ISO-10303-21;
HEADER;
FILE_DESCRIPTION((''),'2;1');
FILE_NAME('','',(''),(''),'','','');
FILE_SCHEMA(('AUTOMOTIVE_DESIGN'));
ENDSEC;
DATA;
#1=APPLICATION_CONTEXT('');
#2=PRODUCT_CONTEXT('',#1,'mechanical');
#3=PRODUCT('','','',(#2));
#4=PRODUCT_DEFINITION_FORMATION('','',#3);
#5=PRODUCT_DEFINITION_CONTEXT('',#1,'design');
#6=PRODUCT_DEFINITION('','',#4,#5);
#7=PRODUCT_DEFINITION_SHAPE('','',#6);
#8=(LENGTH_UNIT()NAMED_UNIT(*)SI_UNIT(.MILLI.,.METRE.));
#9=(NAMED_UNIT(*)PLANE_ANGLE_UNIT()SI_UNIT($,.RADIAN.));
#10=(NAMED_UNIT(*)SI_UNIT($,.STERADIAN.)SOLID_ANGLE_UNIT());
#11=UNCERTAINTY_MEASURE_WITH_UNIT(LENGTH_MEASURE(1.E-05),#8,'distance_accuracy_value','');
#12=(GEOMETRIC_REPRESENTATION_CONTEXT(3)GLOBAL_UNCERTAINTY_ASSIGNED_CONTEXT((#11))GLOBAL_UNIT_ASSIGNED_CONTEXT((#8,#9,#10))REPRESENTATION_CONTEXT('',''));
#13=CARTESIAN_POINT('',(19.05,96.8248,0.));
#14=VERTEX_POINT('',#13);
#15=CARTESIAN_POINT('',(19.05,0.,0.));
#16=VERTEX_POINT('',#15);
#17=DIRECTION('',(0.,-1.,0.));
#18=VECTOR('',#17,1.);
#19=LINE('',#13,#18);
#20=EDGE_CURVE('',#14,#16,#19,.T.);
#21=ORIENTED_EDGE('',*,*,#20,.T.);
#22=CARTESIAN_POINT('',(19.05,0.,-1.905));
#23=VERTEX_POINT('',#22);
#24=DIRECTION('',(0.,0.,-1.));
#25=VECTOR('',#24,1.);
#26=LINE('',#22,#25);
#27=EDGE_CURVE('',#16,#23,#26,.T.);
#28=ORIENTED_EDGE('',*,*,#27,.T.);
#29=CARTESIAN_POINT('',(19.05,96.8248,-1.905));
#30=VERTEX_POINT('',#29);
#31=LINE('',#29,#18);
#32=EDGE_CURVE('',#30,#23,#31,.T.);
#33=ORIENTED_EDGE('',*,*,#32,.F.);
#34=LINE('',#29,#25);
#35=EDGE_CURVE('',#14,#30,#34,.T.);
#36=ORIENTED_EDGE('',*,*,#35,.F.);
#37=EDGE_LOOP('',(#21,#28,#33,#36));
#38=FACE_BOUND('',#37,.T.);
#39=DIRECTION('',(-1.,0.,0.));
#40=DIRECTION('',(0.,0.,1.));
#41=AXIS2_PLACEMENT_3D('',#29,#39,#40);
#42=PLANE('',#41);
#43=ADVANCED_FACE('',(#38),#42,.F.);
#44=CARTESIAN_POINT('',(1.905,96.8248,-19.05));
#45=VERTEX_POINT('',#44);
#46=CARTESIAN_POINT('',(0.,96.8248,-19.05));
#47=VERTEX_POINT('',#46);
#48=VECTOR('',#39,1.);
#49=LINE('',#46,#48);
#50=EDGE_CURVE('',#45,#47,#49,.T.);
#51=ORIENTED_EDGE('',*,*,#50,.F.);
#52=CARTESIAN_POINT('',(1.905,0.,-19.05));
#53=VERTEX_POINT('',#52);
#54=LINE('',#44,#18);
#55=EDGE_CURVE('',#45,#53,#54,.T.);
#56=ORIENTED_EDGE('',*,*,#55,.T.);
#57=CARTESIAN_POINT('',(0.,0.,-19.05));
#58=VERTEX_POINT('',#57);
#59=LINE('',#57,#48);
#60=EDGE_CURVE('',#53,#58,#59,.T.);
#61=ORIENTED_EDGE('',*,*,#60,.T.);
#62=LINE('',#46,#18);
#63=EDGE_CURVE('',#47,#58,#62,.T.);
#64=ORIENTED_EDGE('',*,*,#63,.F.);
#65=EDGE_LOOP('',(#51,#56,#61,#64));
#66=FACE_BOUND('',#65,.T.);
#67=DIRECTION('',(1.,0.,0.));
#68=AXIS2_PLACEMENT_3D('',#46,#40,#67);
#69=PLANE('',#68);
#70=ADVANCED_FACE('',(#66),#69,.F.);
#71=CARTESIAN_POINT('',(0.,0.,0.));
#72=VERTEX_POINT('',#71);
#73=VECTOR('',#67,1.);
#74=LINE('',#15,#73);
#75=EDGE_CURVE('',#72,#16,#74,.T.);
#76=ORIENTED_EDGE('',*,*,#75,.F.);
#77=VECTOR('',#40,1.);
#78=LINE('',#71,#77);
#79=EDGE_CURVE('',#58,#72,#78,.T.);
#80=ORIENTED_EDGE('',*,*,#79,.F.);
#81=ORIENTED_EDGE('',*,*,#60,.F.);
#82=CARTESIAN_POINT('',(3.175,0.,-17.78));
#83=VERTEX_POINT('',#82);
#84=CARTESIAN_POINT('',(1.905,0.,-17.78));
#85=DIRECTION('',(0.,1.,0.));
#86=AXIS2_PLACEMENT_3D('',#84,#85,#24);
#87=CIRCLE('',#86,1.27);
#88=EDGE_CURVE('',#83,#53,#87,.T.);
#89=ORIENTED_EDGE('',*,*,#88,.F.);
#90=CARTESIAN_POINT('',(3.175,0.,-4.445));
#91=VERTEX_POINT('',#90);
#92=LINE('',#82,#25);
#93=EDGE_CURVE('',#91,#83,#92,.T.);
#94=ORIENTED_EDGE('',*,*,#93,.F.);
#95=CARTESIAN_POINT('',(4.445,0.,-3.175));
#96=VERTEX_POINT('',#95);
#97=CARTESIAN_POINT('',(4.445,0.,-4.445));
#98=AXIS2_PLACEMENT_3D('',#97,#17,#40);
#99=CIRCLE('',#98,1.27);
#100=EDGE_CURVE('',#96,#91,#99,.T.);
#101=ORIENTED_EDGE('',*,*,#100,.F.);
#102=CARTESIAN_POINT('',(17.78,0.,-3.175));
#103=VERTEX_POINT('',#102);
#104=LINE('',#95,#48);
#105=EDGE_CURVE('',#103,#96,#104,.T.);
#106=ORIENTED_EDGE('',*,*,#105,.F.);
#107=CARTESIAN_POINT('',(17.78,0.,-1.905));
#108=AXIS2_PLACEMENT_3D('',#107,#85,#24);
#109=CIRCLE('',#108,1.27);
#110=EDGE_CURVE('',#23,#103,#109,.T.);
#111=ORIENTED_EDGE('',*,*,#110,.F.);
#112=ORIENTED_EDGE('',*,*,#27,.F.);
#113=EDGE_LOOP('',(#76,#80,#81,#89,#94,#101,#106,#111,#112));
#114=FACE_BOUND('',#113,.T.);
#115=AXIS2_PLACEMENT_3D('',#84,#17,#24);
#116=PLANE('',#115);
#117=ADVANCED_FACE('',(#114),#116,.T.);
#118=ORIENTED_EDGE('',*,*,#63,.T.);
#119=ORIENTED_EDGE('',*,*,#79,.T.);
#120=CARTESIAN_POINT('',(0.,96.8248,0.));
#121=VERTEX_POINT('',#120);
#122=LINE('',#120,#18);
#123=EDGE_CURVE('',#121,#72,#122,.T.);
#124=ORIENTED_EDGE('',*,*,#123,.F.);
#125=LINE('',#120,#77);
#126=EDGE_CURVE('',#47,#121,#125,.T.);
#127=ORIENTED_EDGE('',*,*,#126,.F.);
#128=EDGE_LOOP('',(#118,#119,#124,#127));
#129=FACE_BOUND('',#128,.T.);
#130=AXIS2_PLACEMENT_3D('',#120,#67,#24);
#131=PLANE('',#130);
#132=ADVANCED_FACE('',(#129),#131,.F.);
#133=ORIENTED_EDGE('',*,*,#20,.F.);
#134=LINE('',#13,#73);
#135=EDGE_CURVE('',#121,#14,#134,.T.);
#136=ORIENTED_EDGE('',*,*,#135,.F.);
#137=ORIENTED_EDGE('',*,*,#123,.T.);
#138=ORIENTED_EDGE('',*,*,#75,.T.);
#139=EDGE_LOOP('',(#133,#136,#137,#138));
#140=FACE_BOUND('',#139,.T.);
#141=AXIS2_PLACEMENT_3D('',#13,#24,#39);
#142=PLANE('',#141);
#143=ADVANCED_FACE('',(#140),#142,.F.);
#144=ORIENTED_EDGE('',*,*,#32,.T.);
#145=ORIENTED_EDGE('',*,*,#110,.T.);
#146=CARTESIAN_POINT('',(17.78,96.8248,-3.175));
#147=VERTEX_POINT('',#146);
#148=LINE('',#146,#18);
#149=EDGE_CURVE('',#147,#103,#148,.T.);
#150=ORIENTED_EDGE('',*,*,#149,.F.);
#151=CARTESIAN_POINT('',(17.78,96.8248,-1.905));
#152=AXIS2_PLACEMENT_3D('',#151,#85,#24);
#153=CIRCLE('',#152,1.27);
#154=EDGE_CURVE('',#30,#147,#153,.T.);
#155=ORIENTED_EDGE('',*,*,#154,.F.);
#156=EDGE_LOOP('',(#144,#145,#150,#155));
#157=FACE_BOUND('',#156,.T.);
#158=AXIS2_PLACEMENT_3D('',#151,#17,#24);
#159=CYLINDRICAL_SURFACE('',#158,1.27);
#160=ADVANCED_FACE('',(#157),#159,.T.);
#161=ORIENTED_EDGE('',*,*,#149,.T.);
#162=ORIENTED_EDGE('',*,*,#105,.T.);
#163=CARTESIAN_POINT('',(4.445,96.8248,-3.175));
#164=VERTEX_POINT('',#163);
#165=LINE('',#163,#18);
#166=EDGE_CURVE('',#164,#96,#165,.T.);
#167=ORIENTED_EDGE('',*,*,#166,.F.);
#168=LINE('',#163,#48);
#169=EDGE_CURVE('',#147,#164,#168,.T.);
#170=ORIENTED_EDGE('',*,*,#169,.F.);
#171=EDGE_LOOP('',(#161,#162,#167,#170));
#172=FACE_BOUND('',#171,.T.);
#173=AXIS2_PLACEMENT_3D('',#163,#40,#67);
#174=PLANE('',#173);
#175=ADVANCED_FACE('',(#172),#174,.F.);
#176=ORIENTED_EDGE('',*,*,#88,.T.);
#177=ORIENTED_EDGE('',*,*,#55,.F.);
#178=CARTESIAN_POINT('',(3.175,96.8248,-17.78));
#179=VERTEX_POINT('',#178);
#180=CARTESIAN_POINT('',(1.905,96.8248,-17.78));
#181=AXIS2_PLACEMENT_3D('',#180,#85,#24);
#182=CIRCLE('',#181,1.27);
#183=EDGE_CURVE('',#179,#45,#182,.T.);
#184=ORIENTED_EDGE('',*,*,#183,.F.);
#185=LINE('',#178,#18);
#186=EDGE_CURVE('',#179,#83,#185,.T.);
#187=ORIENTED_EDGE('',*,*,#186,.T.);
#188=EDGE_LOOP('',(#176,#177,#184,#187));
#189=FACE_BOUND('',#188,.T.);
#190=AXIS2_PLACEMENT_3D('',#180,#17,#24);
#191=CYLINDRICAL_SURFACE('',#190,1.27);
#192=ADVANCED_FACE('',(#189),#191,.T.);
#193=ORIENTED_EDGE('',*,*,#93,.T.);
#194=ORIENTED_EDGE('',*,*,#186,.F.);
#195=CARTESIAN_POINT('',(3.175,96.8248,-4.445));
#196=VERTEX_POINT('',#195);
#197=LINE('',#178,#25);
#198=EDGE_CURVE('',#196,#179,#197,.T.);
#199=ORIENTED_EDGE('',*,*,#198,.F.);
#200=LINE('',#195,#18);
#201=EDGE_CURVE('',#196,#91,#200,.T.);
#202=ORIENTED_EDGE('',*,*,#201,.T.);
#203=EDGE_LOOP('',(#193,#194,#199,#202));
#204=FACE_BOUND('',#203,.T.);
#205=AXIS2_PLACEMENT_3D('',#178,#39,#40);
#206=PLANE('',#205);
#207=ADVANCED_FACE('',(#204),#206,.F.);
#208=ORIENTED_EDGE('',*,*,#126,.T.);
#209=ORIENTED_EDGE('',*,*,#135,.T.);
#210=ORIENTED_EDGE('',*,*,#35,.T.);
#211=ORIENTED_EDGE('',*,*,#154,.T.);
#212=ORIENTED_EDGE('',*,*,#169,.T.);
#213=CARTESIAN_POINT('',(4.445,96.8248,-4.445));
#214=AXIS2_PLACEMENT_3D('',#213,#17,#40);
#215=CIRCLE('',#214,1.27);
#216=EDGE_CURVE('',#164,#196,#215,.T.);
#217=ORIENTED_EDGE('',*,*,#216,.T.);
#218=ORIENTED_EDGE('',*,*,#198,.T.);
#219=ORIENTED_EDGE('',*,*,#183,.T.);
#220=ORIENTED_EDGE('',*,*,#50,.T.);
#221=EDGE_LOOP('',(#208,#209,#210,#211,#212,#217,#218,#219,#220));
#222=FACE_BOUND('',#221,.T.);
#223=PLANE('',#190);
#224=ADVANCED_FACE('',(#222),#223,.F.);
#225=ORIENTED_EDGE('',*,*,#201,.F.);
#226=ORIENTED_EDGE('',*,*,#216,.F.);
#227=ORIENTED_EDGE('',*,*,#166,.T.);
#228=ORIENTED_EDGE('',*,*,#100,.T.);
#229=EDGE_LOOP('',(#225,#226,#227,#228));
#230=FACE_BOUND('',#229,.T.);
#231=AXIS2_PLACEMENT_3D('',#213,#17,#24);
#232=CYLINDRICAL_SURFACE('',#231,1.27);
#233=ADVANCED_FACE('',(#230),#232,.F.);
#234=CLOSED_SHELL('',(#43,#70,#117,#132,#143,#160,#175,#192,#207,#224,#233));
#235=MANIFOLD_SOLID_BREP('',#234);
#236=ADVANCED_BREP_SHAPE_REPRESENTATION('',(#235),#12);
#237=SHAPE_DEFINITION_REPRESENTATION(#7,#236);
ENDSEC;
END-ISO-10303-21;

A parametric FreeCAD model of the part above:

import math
import FreeCAD as App
import Part
import Sketcher

V = App.Vector
Q = App.Units.Quantity

doc = App.newDocument("Part")
params = doc.addObject("Spreadsheet::Sheet", "Params")
for row, (alias, value) in enumerate([
    ("sketch1_radius", "0.05 in"),
    ("sketch1_width", "0.75 in"),
    ("sketch1_width2", "0.525 in"),
    ("pad1_length", "3.812 in"),
], start=1):
    params.set(f"A{row}", alias)
    params.set(f"B{row}", "=" + value)
    params.setAlias(f"B{row}", alias)

body = doc.addObject("PartDesign::Body", "Body")

sketch1 = body.newObject("Sketcher::SketchObject", "Sketch")
sketch1.AttachmentSupport = (doc.getObject("XZ_Plane"), [""])
sketch1.MapMode = "FlatFace"
sketch1.addGeometry(Part.LineSegment(V(0, -19.1, 0), V(0, 0, 0)), False)
sketch1.addGeometry(Part.LineSegment(V(0, 0, 0), V(19.1, 0, 0)), False)
sketch1.addGeometry(Part.LineSegment(V(19.1, 0, 0), V(19.1, -1.9, 0)), False)
sketch1.addGeometry(Part.ArcOfCircle(Part.Circle(V(17.8, -1.9, 0), V(0, 0, 1), 1.3), math.radians(-90), math.radians(0)), False)
sketch1.addGeometry(Part.LineSegment(V(17.8, -3.2, 0), V(4.4, -3.2, 0)), False)
sketch1.addGeometry(Part.ArcOfCircle(Part.Circle(V(4.4, -4.4, 0), V(0, 0, 1), 1.3), math.radians(90), math.radians(180)), False)
sketch1.addGeometry(Part.LineSegment(V(3.2, -4.4, 0), V(3.2, -17.8, 0)), False)
sketch1.addGeometry(Part.ArcOfCircle(Part.Circle(V(1.9, -17.8, 0), V(0, 0, 1), 1.3), math.radians(-90), math.radians(0)), False)
sketch1.addGeometry(Part.LineSegment(V(1.9, -19.1, 0), V(0, -19.1, 0)), False)
sketch1.addConstraint(Sketcher.Constraint("Coincident", 0, 2, 1, 1))
sketch1.addConstraint(Sketcher.Constraint("Coincident", 1, 2, 2, 1))
sketch1.addConstraint(Sketcher.Constraint("Tangent", 2, 2, 3, 2))
sketch1.addConstraint(Sketcher.Constraint("Tangent", 3, 1, 4, 1))
sketch1.addConstraint(Sketcher.Constraint("Tangent", 4, 2, 5, 1))
sketch1.addConstraint(Sketcher.Constraint("Tangent", 5, 2, 6, 1))
sketch1.addConstraint(Sketcher.Constraint("Tangent", 6, 2, 7, 2))
sketch1.addConstraint(Sketcher.Constraint("Tangent", 7, 1, 8, 1))
sketch1.addConstraint(Sketcher.Constraint("Coincident", 8, 2, 0, 1))
sketch1.addConstraint(Sketcher.Constraint("Vertical", 0))
sketch1.addConstraint(Sketcher.Constraint("Horizontal", 1))
sketch1.addConstraint(Sketcher.Constraint("Vertical", 2))
sketch1.addConstraint(Sketcher.Constraint("Horizontal", 4))
sketch1.addConstraint(Sketcher.Constraint("Vertical", 6))
sketch1.addConstraint(Sketcher.Constraint("Horizontal", 8))
sketch1.addConstraint(Sketcher.Constraint("Coincident", 0, 2, -1, 1))
sketch1.addConstraint(Sketcher.Constraint("Equal", 3, 5))
sketch1.addConstraint(Sketcher.Constraint("Equal", 5, 7))
sketch1.addConstraint(Sketcher.Constraint("Equal", 1, 0))
sketch1.addConstraint(Sketcher.Constraint("Equal", 8, 2))
sketch1.addConstraint(Sketcher.Constraint("Radius", 3, Q("0.05 in")))
sketch1.addConstraint(Sketcher.Constraint("DistanceX", 1, 1, 1, 2, Q("0.75 in")))
sketch1.addConstraint(Sketcher.Constraint("DistanceX", 4, 2, 4, 1, Q("0.525 in")))
sketch1.setExpression("Constraints[20]", "Params.sketch1_radius")
sketch1.setExpression("Constraints[21]", "Params.sketch1_width")
sketch1.setExpression("Constraints[22]", "Params.sketch1_width2")
pad1 = body.newObject("PartDesign::Pad", "Pad")
pad1.Profile = sketch1
pad1.setExpression("Length", "Params.pad1_length")
pad1.Reversed = True

doc.recompute()
